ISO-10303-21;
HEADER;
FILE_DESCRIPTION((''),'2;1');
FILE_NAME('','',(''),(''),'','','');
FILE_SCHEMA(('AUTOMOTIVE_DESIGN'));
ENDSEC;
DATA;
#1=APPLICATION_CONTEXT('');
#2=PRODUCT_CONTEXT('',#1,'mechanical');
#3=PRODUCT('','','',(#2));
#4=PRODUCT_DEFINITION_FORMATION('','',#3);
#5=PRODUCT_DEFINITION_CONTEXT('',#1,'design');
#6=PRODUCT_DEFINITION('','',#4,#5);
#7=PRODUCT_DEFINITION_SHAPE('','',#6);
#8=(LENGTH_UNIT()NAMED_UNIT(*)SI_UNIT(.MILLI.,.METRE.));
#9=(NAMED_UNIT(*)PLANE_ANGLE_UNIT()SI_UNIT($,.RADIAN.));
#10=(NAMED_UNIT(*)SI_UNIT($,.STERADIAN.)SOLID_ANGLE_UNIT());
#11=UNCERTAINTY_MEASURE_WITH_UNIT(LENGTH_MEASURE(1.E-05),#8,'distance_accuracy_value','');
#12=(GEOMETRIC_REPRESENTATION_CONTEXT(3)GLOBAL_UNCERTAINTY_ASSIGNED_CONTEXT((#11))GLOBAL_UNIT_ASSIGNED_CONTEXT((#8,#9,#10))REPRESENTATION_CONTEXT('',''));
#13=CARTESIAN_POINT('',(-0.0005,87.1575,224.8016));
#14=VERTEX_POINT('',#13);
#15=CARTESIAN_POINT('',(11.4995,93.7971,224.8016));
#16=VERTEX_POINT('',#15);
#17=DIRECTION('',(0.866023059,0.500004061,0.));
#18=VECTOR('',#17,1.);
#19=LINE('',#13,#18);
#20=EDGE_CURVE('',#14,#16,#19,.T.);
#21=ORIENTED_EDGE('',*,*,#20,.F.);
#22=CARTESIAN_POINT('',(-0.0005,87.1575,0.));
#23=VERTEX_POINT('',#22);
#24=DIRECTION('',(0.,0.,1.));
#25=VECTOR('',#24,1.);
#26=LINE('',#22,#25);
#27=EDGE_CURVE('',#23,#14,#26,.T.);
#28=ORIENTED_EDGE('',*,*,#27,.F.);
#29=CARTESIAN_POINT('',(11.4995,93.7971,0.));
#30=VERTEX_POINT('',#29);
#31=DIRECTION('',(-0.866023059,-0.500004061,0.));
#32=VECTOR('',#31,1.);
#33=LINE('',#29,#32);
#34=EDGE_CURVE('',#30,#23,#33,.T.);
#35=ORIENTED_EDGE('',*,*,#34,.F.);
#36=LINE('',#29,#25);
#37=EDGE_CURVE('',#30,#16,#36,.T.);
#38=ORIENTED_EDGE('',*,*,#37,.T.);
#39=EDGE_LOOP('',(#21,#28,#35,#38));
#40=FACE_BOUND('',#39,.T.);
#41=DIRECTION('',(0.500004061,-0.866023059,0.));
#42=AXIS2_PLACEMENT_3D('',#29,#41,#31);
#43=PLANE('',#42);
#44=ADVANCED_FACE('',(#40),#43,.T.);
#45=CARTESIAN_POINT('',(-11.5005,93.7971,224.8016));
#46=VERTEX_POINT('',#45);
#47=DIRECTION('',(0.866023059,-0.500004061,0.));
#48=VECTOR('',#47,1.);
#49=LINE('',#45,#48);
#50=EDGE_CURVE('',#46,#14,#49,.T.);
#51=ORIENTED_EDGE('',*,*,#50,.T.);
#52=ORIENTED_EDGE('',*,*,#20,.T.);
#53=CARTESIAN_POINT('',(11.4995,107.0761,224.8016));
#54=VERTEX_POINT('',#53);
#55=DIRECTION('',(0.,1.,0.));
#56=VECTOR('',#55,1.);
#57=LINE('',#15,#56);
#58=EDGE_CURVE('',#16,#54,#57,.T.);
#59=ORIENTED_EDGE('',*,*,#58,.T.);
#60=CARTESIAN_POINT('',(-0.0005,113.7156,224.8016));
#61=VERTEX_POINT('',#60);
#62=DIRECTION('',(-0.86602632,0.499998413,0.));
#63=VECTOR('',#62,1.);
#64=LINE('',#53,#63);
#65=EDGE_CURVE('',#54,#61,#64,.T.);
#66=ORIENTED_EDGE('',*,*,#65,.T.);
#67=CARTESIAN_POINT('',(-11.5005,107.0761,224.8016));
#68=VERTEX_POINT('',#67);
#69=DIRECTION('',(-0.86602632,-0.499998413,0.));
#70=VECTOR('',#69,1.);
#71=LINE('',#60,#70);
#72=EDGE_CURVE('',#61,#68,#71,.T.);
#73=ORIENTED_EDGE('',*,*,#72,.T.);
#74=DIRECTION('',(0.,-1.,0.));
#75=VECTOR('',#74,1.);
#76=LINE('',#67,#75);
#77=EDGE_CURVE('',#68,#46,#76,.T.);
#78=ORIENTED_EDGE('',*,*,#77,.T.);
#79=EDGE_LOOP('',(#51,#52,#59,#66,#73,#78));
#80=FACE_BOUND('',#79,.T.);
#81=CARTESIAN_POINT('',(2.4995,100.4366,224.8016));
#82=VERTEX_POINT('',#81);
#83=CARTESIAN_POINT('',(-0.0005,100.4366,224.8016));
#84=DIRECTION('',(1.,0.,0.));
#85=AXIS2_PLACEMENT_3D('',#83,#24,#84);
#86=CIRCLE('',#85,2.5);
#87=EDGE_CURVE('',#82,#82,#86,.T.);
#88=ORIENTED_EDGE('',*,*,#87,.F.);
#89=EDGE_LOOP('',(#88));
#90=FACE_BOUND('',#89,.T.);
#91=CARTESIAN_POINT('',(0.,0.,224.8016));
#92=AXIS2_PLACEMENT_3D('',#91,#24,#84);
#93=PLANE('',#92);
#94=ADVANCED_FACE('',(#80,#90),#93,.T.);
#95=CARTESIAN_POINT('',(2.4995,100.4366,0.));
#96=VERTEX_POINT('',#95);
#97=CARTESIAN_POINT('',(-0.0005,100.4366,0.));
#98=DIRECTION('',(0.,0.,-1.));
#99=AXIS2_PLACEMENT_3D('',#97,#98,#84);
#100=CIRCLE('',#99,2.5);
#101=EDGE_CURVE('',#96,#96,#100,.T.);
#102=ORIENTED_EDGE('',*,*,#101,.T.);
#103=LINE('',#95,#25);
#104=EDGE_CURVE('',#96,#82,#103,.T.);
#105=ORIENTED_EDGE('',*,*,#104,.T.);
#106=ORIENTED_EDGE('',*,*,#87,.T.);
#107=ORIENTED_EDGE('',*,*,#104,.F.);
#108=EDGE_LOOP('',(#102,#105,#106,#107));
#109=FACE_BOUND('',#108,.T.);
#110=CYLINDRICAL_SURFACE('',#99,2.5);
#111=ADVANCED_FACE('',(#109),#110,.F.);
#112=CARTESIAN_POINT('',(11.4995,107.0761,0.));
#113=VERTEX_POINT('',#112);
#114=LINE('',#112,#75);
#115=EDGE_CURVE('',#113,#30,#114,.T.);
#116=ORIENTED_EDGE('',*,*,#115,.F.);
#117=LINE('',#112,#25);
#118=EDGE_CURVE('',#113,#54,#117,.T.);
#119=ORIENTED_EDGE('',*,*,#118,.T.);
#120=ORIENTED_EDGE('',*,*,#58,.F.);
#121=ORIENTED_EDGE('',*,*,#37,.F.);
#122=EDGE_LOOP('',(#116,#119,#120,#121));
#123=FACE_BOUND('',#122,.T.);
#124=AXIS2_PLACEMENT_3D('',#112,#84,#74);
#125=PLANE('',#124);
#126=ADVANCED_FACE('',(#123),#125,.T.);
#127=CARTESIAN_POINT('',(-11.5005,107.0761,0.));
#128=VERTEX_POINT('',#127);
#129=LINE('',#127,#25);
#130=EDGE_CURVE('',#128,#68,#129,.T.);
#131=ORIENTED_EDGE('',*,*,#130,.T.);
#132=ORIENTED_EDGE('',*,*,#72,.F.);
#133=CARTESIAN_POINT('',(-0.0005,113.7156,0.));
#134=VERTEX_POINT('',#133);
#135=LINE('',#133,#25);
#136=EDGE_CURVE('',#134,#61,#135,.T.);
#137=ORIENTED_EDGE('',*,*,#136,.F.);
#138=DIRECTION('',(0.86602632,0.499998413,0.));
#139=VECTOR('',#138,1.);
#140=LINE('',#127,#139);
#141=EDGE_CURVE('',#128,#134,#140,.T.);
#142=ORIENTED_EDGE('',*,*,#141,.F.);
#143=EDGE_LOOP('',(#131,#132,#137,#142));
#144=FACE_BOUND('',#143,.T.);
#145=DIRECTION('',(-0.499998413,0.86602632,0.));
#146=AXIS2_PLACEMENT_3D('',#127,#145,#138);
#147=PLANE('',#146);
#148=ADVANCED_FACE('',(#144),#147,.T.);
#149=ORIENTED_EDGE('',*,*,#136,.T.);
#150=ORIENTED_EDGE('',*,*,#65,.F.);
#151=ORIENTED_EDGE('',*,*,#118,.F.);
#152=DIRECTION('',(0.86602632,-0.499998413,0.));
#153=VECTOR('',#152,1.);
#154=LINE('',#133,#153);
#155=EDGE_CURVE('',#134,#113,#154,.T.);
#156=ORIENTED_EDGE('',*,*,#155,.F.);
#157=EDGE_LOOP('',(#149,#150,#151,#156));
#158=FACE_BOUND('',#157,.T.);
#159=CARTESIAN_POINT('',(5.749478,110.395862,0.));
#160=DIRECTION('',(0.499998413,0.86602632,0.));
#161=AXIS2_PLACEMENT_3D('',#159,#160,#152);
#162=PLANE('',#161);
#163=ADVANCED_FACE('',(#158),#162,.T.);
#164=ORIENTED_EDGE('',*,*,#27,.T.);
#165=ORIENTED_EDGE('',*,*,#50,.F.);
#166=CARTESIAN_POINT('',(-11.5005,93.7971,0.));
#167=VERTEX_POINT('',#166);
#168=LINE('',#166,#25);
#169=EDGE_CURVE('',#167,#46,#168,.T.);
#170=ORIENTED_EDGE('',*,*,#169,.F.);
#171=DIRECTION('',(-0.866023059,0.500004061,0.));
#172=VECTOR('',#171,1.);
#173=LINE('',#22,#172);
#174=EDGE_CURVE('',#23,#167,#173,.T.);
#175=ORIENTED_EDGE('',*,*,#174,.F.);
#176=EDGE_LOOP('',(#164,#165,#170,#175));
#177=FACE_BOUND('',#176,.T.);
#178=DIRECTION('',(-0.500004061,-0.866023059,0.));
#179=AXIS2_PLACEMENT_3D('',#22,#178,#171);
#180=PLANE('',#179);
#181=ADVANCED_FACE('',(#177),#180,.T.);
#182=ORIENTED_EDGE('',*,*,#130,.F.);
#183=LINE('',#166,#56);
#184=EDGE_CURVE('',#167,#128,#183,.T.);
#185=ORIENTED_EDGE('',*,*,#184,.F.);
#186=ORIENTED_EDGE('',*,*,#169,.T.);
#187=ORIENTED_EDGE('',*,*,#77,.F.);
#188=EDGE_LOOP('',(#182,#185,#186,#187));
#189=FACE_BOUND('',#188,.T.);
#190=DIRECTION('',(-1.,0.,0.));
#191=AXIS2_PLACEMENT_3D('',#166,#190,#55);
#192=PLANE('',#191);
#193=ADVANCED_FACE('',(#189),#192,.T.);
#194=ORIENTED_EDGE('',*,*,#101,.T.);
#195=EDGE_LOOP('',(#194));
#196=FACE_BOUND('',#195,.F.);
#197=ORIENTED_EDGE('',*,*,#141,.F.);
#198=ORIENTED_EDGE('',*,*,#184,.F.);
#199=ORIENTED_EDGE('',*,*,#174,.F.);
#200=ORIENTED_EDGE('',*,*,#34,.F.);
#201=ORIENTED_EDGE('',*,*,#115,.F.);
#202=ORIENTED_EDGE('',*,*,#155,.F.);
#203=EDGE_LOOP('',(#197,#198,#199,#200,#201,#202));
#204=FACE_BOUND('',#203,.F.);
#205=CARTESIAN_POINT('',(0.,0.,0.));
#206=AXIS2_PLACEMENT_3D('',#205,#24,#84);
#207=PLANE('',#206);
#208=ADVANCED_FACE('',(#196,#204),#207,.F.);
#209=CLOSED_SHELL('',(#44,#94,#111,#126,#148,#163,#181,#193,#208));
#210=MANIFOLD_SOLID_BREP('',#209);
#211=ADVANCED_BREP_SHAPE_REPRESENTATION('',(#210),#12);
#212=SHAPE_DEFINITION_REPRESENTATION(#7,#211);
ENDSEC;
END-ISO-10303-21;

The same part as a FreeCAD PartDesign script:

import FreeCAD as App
import Part
import Sketcher

V = App.Vector
Q = App.Units.Quantity

doc = App.newDocument("Part")
body = doc.addObject("PartDesign::Body", "Body")

# Sketch on XY plane
sketch1 = doc.addObject("Sketcher::SketchObject", "Sketch")
body.addObject(sketch1)
sketch1.AttachmentSupport = (doc.XY_Plane, [""])
sketch1.MapMode = "FlatFace"
sketch1.addGeometry([
    Part.LineSegment(V(11.5, 107.1, 0), V(0, 113.7, 0)),  # 0
    Part.LineSegment(V(0, 113.7, 0), V(-11.5, 107.1, 0)),  # 1
    Part.LineSegment(V(-11.5, 107.1, 0), V(-11.5, 93.8, 0)),  # 2
    Part.LineSegment(V(-11.5, 93.8, 0), V(0, 87.2, 0)),  # 3
    Part.LineSegment(V(0, 87.2, 0), V(11.5, 93.8, 0)),  # 4
    Part.LineSegment(V(11.5, 93.8, 0), V(11.5, 107.1, 0)),  # 5
    Part.Circle(V(0, 100.4, 0), V(0, 0, 1), 2.5),  # 6
], False)
sketch1.addConstraint([
    Sketcher.Constraint("Coincident", 0, 2, 1, 1),
    Sketcher.Constraint("Coincident", 1, 2, 2, 1),
    Sketcher.Constraint("Coincident", 2, 2, 3, 1),
    Sketcher.Constraint("Coincident", 3, 2, 4, 1),
    Sketcher.Constraint("Coincident", 4, 2, 5, 1),
    Sketcher.Constraint("Coincident", 5, 2, 0, 1),
    Sketcher.Constraint("Vertical", 2),
    Sketcher.Constraint("Vertical", 5),
    Sketcher.Constraint("Parallel", 0, 3),
    Sketcher.Constraint("Parallel", 1, 4),
    Sketcher.Constraint("Horizontal", 2, 2, 4, 2),
    Sketcher.Constraint("Horizontal", 1, 2, 5, 2),
    Sketcher.Constraint("Vertical", 6, 3, 0, 2),
    Sketcher.Constraint("Vertical", 0, 2, 3, 2),
    Sketcher.Constraint("Angle", 3, Q("-30.0003 deg")),
    Sketcher.Constraint("Diameter", 6, 5.0),
    Sketcher.Constraint("DistanceX", 2, 2, 4, 2, 23.0),
    Sketcher.Constraint("DistanceY", 2, 2, 2, 1, 13.279),
    Sketcher.Constraint("DistanceY", -1, 1, 1, 2, 107.076),
    Sketcher.Constraint("DistanceY", 6, 3, 0, 2, 13.279),
    Sketcher.Constraint("DistanceX", 6, 3, -1, 1, 0.0005),
])
pad1 = doc.addObject("PartDesign::Pad", "Pad")
body.addObject(pad1)
pad1.Profile = sketch1
pad1.Length = 224.8016

doc.recompute()
